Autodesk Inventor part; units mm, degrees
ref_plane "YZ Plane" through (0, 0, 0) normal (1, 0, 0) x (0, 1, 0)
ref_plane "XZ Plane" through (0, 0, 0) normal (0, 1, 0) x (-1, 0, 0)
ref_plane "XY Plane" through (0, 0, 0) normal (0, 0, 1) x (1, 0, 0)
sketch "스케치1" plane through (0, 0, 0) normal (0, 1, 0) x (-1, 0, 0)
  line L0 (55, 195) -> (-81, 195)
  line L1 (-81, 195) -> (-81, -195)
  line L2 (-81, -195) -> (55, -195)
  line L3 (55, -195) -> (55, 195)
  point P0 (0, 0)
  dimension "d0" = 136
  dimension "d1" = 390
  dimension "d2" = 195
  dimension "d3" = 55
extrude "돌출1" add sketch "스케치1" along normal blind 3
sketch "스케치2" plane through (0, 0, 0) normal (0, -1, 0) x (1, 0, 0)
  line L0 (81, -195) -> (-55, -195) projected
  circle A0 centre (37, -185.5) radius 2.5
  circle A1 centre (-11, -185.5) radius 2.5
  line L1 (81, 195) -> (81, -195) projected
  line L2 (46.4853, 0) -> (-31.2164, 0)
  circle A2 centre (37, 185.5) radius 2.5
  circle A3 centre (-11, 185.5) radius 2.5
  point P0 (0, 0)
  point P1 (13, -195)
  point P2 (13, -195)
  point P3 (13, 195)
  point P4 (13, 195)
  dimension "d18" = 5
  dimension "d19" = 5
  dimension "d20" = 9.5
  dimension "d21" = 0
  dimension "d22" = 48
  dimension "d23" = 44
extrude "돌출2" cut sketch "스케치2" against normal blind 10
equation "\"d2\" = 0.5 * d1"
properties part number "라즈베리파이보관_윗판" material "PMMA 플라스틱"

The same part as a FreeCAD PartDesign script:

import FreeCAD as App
import Part
import Sketcher
from FreeCAD import Vector
Q = App.Units.Quantity


def add_polygon(sketch, points):
    """Adds a closed chain of lines whose ends are joined by coincident constraints."""
    first, n = sketch.GeometryCount, len(points)
    for a, b in zip(points, points[1:] + points[:1]):
        sketch.addGeometry(Part.LineSegment(App.Vector(*a, 0), App.Vector(*b, 0)), False)
    for i in range(n):
        sketch.addConstraint(Sketcher.Constraint("Coincident", first + i, 2, first + (i + 1) % n, 1))

doc = App.newDocument("Part")
body = doc.addObject("PartDesign::Body", "Body")

sketch1 = body.newObject("Sketcher::SketchObject", "Sketch")
sketch1.AttachmentSupport = (doc.getObject("XZ_Plane"), [""])
sketch1.MapMode = "FlatFace"
add_polygon(sketch1, [(-55, -195), (-55, 195), (81, 195), (81, -195)])
sketch1.addConstraint([
    Sketcher.Constraint("Vertical", 0),
    Sketcher.Constraint("Horizontal", 1),
    Sketcher.Constraint("Vertical", 2),
    Sketcher.Constraint("Horizontal", 3),
    Sketcher.Constraint("DistanceX", 1, 1, 1, 2, Q("136 mm")),
    Sketcher.Constraint("DistanceY", 0, 1, 0, 2, Q("390 mm")),
    Sketcher.Constraint("DistanceX", 0, 2, -1, 1, Q("55 mm")),
    Sketcher.Constraint("DistanceY", -1, 1, 0, 2, Q("195 mm")),
])
pad1 = body.newObject("PartDesign::Pad", "Pad")
pad1.Profile = sketch1
pad1.Length = 3
pad1.Reversed = True

sketch2 = body.newObject("Sketcher::SketchObject", "Sketch001")
sketch2.AttachmentSupport = (doc.getObject("XZ_Plane"), [""])
sketch2.MapMode = "FlatFace"
sketch2.addGeometry([
    Part.Circle(Vector(37, -185.5, 0), Vector(0, 0, 1), 2.5),
    Part.Circle(Vector(-11, -185.5, 0), Vector(0, 0, 1), 2.5),
    Part.Circle(Vector(37, 185.5, 0), Vector(0, 0, 1), 2.5),
    Part.Circle(Vector(-11, 185.5, 0), Vector(0, 0, 1), 2.5),
], False)
sketch2.addConstraint([
    Sketcher.Constraint("Equal", 0, 1),
    Sketcher.Constraint("Equal", 1, 2),
    Sketcher.Constraint("Equal", 2, 3),
    Sketcher.Constraint("Symmetric", 0, 3, 2, 3, -1),
    Sketcher.Constraint("Symmetric", 1, 3, 3, 3, -1),
    Sketcher.Constraint("Horizontal", 0, 3, 1, 3),
    Sketcher.Constraint("Diameter", 0, Q("5 mm")),
    Sketcher.Constraint("DistanceX", 1, 3, 0, 3, Q("48 mm")),
    Sketcher.Constraint("DistanceX", -1, 1, 0, 3, Q("37 mm")),
    Sketcher.Constraint("DistanceY", 0, 3, 2, 3, Q("371 mm")),
])
pocket1 = body.newObject("PartDesign::Pocket", "Pocket")
pocket1.Profile = sketch2
pocket1.Length = 10

doc.recompute()
